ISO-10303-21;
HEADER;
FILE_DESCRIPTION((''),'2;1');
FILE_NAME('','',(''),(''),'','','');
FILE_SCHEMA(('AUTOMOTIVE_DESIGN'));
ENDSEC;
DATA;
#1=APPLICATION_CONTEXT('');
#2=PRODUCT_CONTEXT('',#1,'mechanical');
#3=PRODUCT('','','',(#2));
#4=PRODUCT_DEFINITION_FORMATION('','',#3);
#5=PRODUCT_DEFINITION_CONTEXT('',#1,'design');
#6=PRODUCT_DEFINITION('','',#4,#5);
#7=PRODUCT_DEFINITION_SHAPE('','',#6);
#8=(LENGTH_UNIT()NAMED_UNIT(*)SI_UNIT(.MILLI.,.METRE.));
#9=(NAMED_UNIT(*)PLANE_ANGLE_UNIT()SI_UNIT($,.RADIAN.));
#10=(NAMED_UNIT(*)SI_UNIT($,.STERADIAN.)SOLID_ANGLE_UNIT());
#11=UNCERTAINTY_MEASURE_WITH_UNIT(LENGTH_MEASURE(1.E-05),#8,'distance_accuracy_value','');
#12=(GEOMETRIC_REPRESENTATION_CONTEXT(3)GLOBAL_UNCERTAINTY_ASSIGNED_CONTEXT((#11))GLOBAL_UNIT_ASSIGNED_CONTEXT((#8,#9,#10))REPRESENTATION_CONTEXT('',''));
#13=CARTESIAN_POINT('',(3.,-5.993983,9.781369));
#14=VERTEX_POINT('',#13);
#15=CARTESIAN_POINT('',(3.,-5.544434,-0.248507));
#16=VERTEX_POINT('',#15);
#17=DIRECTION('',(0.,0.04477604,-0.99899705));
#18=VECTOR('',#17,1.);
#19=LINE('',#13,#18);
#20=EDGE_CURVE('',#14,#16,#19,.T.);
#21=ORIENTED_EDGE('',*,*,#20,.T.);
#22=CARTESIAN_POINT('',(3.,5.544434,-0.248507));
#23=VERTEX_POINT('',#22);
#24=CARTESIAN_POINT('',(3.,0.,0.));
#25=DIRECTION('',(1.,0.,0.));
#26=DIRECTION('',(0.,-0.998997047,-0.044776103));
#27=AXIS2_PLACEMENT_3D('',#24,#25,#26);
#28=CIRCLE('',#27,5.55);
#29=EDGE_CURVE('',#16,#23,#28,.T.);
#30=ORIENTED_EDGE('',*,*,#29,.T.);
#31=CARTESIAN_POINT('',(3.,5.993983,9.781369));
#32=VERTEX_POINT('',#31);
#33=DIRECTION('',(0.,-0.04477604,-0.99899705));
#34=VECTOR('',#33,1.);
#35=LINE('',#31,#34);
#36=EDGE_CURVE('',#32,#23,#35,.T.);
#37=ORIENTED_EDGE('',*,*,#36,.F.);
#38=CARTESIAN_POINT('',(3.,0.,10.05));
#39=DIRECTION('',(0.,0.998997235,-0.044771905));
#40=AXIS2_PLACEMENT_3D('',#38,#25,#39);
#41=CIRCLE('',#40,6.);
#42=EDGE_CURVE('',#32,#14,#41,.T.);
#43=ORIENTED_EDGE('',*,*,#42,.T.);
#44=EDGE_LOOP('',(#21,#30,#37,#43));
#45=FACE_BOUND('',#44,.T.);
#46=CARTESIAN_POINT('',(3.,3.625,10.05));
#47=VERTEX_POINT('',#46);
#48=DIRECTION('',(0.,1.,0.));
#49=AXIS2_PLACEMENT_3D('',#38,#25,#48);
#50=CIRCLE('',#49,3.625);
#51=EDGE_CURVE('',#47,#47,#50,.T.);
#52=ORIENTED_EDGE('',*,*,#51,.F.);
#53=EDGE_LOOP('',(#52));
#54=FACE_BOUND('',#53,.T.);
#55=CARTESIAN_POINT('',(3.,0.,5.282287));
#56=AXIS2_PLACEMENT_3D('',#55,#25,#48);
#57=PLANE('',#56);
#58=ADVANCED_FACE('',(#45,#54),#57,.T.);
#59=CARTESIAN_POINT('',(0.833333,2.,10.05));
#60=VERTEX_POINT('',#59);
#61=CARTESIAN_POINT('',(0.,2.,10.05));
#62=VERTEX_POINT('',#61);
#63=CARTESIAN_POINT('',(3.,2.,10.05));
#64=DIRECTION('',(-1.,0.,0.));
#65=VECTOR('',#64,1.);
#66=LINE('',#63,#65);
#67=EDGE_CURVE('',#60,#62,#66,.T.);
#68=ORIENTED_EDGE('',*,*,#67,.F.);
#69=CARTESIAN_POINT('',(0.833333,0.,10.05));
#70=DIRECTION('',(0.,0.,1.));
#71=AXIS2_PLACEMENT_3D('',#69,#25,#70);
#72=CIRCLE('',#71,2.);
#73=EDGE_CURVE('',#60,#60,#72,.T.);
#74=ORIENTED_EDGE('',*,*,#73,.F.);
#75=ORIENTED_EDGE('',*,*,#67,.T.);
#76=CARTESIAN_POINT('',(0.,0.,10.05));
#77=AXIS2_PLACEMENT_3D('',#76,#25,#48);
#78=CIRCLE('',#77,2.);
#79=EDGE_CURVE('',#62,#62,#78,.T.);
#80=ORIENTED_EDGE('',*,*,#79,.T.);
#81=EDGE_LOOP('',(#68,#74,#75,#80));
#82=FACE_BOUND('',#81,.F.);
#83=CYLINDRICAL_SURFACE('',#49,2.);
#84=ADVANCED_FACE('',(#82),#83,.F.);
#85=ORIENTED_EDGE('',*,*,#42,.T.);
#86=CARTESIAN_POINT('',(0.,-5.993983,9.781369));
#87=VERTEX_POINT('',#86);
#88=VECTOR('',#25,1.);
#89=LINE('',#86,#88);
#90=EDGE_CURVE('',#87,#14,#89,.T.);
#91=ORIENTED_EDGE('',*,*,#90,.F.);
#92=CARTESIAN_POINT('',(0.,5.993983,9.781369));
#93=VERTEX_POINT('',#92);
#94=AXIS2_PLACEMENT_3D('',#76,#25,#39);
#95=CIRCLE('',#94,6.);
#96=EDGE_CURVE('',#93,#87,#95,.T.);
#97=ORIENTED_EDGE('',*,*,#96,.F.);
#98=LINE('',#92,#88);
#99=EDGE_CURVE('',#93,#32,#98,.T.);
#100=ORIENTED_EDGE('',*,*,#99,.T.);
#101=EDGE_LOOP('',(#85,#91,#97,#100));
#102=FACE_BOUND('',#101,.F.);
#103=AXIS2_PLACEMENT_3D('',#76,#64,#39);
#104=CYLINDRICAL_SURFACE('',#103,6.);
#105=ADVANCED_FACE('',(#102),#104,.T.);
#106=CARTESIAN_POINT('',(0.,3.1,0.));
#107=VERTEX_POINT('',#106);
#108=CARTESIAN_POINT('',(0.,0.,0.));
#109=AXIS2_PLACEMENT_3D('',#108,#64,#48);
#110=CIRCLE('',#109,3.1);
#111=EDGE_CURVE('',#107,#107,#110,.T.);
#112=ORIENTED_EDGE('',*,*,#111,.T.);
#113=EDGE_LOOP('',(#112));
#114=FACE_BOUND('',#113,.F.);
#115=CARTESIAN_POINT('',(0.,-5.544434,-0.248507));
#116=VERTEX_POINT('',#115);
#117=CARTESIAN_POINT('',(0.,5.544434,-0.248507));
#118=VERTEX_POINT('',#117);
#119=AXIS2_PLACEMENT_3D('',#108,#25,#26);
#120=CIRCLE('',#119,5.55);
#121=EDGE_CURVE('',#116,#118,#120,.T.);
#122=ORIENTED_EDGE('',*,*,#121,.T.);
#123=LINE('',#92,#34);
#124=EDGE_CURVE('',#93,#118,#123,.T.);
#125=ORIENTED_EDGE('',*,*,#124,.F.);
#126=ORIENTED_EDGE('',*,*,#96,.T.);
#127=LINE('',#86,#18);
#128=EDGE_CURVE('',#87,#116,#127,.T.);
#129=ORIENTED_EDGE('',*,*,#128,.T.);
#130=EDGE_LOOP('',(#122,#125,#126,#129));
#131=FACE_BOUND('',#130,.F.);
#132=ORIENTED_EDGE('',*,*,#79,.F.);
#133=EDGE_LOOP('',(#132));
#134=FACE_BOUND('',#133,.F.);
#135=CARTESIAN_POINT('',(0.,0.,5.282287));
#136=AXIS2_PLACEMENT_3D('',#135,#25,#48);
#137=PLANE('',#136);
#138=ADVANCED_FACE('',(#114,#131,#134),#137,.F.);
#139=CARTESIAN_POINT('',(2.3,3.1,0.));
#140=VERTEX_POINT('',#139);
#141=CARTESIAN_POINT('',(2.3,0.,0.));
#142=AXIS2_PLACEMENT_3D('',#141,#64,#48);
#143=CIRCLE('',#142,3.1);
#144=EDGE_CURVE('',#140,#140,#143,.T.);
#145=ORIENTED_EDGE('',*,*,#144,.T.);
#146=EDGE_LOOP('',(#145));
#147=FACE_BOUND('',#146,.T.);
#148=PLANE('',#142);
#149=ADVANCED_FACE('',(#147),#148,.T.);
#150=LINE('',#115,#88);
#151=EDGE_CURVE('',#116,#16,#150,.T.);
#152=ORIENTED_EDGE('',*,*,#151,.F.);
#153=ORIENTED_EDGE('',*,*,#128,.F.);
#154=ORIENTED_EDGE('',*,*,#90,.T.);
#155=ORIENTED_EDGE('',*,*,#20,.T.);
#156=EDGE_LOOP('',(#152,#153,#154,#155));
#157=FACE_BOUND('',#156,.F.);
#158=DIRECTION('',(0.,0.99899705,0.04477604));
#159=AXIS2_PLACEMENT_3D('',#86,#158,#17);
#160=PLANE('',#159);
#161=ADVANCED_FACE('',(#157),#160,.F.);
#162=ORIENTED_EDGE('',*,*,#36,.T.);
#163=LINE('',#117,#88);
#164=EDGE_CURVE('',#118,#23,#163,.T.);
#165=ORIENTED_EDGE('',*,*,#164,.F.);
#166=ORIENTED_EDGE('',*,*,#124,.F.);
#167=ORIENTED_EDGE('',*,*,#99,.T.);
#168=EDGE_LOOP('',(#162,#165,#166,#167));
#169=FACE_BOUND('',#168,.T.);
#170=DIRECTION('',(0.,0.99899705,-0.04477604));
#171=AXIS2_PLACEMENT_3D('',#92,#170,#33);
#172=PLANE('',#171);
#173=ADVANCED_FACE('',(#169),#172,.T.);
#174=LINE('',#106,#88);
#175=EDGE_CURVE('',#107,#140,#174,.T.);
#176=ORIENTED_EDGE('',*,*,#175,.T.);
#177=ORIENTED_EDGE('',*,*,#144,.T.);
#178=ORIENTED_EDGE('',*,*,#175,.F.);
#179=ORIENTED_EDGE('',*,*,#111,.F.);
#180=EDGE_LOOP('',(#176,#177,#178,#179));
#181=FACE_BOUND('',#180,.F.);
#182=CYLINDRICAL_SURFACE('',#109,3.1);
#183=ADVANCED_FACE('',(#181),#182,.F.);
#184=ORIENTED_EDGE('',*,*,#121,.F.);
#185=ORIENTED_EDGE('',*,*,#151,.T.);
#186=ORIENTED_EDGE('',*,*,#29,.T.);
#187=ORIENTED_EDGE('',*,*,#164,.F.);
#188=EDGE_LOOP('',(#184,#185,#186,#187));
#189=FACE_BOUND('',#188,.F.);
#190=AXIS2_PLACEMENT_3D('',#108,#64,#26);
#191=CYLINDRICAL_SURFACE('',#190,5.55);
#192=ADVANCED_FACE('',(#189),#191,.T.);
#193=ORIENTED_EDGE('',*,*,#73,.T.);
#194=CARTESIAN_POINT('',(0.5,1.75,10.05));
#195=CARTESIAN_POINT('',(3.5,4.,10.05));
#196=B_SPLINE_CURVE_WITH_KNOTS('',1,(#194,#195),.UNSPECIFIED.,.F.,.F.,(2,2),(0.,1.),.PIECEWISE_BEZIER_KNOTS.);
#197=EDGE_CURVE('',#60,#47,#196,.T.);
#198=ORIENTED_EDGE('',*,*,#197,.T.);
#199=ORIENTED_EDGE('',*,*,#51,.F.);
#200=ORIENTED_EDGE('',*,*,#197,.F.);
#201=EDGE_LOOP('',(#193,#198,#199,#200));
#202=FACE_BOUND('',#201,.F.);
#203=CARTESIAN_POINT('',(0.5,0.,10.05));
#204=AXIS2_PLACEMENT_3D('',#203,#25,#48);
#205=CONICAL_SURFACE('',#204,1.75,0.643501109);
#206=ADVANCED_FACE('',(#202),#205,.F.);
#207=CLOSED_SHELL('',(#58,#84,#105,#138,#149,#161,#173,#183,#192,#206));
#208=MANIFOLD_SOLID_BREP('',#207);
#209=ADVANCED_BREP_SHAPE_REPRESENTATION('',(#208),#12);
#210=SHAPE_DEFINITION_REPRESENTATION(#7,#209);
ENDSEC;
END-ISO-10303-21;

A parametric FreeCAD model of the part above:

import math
import FreeCAD as App
import Part
import Sketcher

V = App.Vector
Q = App.Units.Quantity

doc = App.newDocument("Part")
params = doc.addObject("Spreadsheet::Sheet", "Params")
for row, (alias, value) in enumerate([
    ("sketch1_diameter", "3.5 mm"),
    ("sketch2_diameter", "8 mm"),
    ("sketch3_radius", "6 mm"),
    ("sketch3_radius2", "5.55 mm"),
    ("pad1_length", "3 mm"),
    ("sketch4_diameter", "6.2 mm"),
    ("pocket1_length", "2.3 mm"),
    ("sketch5_diameter", "4 mm"),
], start=1):
    params.set(f"A{row}", alias)
    params.set(f"B{row}", "=" + value)
    params.setAlias(f"B{row}", alias)

body = doc.addObject("PartDesign::Body", "Body")

sketch1 = body.newObject("Sketcher::SketchObject", "Sketch")
sketch1.AttachmentSupport = (doc.getObject("YZ_Plane"), [""])
sketch1.MapMode = "FlatFace"
sketch1.AttachmentOffset = App.Placement(V(0, 0, 0.5), App.Rotation())
sketch1.addGeometry(Part.Circle(V(0, 10.1, 0), V(0, 0, 1), 1.8), False)
sketch1.addConstraint([
    Sketcher.Constraint("PointOnObject", 0, 3, -2),
    Sketcher.Constraint("Diameter", 0, Q("3.5 mm")),
    Sketcher.Constraint("DistanceY", -1, 1, 0, 3, Q("10.05 mm")),
])
sketch1.setExpression("Constraints[1]", "Params.sketch1_diameter")

sketch2 = body.newObject("Sketcher::SketchObject", "Sketch001")
sketch2.AttachmentSupport = (doc.getObject("YZ_Plane"), [""])
sketch2.MapMode = "FlatFace"
sketch2.AttachmentOffset = App.Placement(V(0, 0, 3.5), App.Rotation())
sketch2.addGeometry(Part.Circle(V(0, 10.1, 0), V(0, 0, 1), 4), False)
sketch2.addConstraint([
    Sketcher.Constraint("PointOnObject", 0, 3, -2),
    Sketcher.Constraint("Diameter", 0, Q("8 mm")),
    Sketcher.Constraint("DistanceY", -1, 1, 0, 3, Q("10.05 mm")),
])
sketch2.setExpression("Constraints[1]", "Params.sketch2_diameter")

additiveloft = body.newObject("PartDesign::AdditiveLoft", "AdditiveLoft")
additiveloft.Profile = sketch1
additiveloft.Sections = [sketch2]
body2 = doc.addObject("PartDesign::Body", "Body001")

sketch3 = body2.newObject("Sketcher::SketchObject", "Sketch002")
sketch3.AttachmentSupport = (doc.getObject("YZ_Plane001"), [""])
sketch3.MapMode = "FlatFace"
sketch3.addGeometry([
    Part.LineSegment(V(-6, 10, 0), V(-6, 0, 0)),
    Part.ArcOfCircle(Part.Circle(V(0, 0, 0), V(0, 0, 1), 6), math.radians(-177), math.radians(-3)),
    Part.LineSegment(V(6, 0, 0), V(6, 10, 0)),
    Part.ArcOfCircle(Part.Circle(V(0, 10, 0), V(0, 0, 1), 6), math.radians(-3), math.radians(183)),
], False)
sketch3.addConstraint([
    Sketcher.Constraint("Tangent", 0, 2, 1, 1),
    Sketcher.Constraint("Tangent", 1, 2, 2, 1),
    Sketcher.Constraint("Coincident", 2, 2, 3, 1),
    Sketcher.Constraint("Coincident", 3, 2, 0, 1),
    Sketcher.Constraint("Coincident", 1, 3, -1, 1),
    Sketcher.Constraint("Symmetric", 2, 2, 3, 2, -2),
    Sketcher.Constraint("Radius", 3, Q("6 mm")),
    Sketcher.Constraint("Radius", 1, Q("5.55 mm")),
    Sketcher.Constraint("DistanceY", -1, 1, 3, 3, Q("10.05 mm")),
    Sketcher.Constraint("DistanceY", -1, 1, 2, 2, Q("9.781369 mm")),
])
sketch3.setExpression("Constraints[6]", "Params.sketch3_radius")
sketch3.setExpression("Constraints[7]", "Params.sketch3_radius2")
pad1 = body2.newObject("PartDesign::Pad", "Pad")
pad1.Profile = sketch3
pad1.setExpression("Length", "Params.pad1_length")

sketch4 = body2.newObject("Sketcher::SketchObject", "Sketch003")
sketch4.AttachmentSupport = (doc.getObject("YZ_Plane001"), [""])
sketch4.MapMode = "FlatFace"
sketch4.addGeometry(Part.Circle(V(0, 0, 0), V(0, 0, 1), 3.1), False)
sketch4.addConstraint([
    Sketcher.Constraint("Coincident", 0, 3, -1, 1),
    Sketcher.Constraint("Diameter", 0, Q("6.2 mm")),
])
sketch4.setExpression("Constraints[1]", "Params.sketch4_diameter")
pocket1 = body2.newObject("PartDesign::Pocket", "Pocket")
pocket1.Profile = sketch4
pocket1.setExpression("Length", "Params.pocket1_length")
pocket1.Reversed = True

sketch5 = body2.newObject("Sketcher::SketchObject", "Sketch004")
sketch5.AttachmentSupport = (doc.getObject("YZ_Plane001"), [""])
sketch5.MapMode = "FlatFace"
sketch5.AttachmentOffset = App.Placement(V(0, 0, 3), App.Rotation())
sketch5.addGeometry(Part.Circle(V(0, 10.1, 0), V(0, 0, 1), 2), False)
sketch5.addConstraint([
    Sketcher.Constraint("PointOnObject", 0, 3, -2),
    Sketcher.Constraint("Diameter", 0, Q("4 mm")),
    Sketcher.Constraint("DistanceY", -1, 1, 0, 3, Q("10.05 mm")),
])
sketch5.setExpression("Constraints[1]", "Params.sketch5_diameter")
pocket2 = body2.newObject("PartDesign::Pocket", "Pocket001")
pocket2.Profile = sketch5
pocket2.Type = "ThroughAll"
doc.recompute()

boolean = body2.newObject("PartDesign::Boolean", "Boolean")
boolean.Type = "Cut"
boolean.addObjects([body])

doc.recompute()
